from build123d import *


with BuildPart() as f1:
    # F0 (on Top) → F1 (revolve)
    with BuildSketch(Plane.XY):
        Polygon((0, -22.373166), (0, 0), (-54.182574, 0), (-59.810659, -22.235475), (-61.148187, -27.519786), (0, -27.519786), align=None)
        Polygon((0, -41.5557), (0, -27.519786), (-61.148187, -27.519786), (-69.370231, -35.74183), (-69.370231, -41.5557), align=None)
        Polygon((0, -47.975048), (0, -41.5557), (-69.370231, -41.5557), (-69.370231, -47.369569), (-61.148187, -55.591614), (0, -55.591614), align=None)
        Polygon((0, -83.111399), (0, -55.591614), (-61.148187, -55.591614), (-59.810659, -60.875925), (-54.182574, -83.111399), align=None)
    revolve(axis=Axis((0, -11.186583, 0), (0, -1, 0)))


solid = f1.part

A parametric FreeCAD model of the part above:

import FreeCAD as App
import Part
import Sketcher

V = App.Vector
Q = App.Units.Quantity


def add_polygon(sketch, points):
    """Adds a closed chain of lines whose ends are joined by coincident constraints."""
    first, n = sketch.GeometryCount, len(points)
    for a, b in zip(points, points[1:] + points[:1]):
        sketch.addGeometry(Part.LineSegment(App.Vector(*a, 0), App.Vector(*b, 0)), False)
    for i in range(n):
        sketch.addConstraint(Sketcher.Constraint("Coincident", first + i, 2, first + (i + 1) % n, 1))

doc = App.newDocument("Part")
body = doc.addObject("PartDesign::Body", "Body")

# Sketch on XY plane
sketch1 = body.newObject("Sketcher::SketchObject", "Sketch")
sketch1.AttachmentSupport = (doc.getObject("XY_Plane"), [""])
sketch1.MapMode = "FlatFace"
add_polygon(sketch1, [(0, 0), (-54, 0), (-60, -22), (-61, -28), (-69, -36), (-69, -47), (-61, -56), (-60, -61), (-54, -83), (0, -83)])  # lines 0-9
sketch1.addConstraint([
    Sketcher.Constraint("Horizontal", 0),
    Sketcher.Constraint("Vertical", 4),
    Sketcher.Constraint("Horizontal", 8),
    Sketcher.Constraint("Vertical", 9),
    Sketcher.Constraint("Coincident", 9, 2, -1, 1),
    Sketcher.Constraint("Parallel", 1, 2),
    Sketcher.Constraint("Perpendicular", 3, 5),
    Sketcher.Constraint("Parallel", 6, 7),
    Sketcher.Constraint("Vertical", 2, 2, 5, 2),
    Sketcher.Constraint("Vertical", 1, 2, 6, 2),
    Sketcher.Constraint("Vertical", 0, 2, 7, 2),
    Sketcher.Constraint("Equal", 3, 5),
    Sketcher.Constraint("Equal", 2, 6),
    Sketcher.Constraint("DistanceY", 9, 1, 9, 2, Q("83.111399 mm")),
    Sketcher.Constraint("DistanceY", 4, 2, 4, 1, Q("11.627739 mm")),
    Sketcher.Constraint("Distance", 1, Q("22.936689 mm")),
    Sketcher.Constraint("DistanceX", 0, 2, 0, 1, Q("54.182574 mm")),
    Sketcher.Constraint("DistanceX", 1, 2, -1, 1, Q("59.810659 mm")),
    Sketcher.Constraint("DistanceX", 3, 2, -1, 1, Q("69.370231 mm")),
])
revolution = body.newObject("PartDesign::Revolution", "Revolution")
revolution.Profile = sketch1
revolution.ReferenceAxis = (sketch1, ["V_Axis"])
revolution.Angle = 360

doc.recompute()
